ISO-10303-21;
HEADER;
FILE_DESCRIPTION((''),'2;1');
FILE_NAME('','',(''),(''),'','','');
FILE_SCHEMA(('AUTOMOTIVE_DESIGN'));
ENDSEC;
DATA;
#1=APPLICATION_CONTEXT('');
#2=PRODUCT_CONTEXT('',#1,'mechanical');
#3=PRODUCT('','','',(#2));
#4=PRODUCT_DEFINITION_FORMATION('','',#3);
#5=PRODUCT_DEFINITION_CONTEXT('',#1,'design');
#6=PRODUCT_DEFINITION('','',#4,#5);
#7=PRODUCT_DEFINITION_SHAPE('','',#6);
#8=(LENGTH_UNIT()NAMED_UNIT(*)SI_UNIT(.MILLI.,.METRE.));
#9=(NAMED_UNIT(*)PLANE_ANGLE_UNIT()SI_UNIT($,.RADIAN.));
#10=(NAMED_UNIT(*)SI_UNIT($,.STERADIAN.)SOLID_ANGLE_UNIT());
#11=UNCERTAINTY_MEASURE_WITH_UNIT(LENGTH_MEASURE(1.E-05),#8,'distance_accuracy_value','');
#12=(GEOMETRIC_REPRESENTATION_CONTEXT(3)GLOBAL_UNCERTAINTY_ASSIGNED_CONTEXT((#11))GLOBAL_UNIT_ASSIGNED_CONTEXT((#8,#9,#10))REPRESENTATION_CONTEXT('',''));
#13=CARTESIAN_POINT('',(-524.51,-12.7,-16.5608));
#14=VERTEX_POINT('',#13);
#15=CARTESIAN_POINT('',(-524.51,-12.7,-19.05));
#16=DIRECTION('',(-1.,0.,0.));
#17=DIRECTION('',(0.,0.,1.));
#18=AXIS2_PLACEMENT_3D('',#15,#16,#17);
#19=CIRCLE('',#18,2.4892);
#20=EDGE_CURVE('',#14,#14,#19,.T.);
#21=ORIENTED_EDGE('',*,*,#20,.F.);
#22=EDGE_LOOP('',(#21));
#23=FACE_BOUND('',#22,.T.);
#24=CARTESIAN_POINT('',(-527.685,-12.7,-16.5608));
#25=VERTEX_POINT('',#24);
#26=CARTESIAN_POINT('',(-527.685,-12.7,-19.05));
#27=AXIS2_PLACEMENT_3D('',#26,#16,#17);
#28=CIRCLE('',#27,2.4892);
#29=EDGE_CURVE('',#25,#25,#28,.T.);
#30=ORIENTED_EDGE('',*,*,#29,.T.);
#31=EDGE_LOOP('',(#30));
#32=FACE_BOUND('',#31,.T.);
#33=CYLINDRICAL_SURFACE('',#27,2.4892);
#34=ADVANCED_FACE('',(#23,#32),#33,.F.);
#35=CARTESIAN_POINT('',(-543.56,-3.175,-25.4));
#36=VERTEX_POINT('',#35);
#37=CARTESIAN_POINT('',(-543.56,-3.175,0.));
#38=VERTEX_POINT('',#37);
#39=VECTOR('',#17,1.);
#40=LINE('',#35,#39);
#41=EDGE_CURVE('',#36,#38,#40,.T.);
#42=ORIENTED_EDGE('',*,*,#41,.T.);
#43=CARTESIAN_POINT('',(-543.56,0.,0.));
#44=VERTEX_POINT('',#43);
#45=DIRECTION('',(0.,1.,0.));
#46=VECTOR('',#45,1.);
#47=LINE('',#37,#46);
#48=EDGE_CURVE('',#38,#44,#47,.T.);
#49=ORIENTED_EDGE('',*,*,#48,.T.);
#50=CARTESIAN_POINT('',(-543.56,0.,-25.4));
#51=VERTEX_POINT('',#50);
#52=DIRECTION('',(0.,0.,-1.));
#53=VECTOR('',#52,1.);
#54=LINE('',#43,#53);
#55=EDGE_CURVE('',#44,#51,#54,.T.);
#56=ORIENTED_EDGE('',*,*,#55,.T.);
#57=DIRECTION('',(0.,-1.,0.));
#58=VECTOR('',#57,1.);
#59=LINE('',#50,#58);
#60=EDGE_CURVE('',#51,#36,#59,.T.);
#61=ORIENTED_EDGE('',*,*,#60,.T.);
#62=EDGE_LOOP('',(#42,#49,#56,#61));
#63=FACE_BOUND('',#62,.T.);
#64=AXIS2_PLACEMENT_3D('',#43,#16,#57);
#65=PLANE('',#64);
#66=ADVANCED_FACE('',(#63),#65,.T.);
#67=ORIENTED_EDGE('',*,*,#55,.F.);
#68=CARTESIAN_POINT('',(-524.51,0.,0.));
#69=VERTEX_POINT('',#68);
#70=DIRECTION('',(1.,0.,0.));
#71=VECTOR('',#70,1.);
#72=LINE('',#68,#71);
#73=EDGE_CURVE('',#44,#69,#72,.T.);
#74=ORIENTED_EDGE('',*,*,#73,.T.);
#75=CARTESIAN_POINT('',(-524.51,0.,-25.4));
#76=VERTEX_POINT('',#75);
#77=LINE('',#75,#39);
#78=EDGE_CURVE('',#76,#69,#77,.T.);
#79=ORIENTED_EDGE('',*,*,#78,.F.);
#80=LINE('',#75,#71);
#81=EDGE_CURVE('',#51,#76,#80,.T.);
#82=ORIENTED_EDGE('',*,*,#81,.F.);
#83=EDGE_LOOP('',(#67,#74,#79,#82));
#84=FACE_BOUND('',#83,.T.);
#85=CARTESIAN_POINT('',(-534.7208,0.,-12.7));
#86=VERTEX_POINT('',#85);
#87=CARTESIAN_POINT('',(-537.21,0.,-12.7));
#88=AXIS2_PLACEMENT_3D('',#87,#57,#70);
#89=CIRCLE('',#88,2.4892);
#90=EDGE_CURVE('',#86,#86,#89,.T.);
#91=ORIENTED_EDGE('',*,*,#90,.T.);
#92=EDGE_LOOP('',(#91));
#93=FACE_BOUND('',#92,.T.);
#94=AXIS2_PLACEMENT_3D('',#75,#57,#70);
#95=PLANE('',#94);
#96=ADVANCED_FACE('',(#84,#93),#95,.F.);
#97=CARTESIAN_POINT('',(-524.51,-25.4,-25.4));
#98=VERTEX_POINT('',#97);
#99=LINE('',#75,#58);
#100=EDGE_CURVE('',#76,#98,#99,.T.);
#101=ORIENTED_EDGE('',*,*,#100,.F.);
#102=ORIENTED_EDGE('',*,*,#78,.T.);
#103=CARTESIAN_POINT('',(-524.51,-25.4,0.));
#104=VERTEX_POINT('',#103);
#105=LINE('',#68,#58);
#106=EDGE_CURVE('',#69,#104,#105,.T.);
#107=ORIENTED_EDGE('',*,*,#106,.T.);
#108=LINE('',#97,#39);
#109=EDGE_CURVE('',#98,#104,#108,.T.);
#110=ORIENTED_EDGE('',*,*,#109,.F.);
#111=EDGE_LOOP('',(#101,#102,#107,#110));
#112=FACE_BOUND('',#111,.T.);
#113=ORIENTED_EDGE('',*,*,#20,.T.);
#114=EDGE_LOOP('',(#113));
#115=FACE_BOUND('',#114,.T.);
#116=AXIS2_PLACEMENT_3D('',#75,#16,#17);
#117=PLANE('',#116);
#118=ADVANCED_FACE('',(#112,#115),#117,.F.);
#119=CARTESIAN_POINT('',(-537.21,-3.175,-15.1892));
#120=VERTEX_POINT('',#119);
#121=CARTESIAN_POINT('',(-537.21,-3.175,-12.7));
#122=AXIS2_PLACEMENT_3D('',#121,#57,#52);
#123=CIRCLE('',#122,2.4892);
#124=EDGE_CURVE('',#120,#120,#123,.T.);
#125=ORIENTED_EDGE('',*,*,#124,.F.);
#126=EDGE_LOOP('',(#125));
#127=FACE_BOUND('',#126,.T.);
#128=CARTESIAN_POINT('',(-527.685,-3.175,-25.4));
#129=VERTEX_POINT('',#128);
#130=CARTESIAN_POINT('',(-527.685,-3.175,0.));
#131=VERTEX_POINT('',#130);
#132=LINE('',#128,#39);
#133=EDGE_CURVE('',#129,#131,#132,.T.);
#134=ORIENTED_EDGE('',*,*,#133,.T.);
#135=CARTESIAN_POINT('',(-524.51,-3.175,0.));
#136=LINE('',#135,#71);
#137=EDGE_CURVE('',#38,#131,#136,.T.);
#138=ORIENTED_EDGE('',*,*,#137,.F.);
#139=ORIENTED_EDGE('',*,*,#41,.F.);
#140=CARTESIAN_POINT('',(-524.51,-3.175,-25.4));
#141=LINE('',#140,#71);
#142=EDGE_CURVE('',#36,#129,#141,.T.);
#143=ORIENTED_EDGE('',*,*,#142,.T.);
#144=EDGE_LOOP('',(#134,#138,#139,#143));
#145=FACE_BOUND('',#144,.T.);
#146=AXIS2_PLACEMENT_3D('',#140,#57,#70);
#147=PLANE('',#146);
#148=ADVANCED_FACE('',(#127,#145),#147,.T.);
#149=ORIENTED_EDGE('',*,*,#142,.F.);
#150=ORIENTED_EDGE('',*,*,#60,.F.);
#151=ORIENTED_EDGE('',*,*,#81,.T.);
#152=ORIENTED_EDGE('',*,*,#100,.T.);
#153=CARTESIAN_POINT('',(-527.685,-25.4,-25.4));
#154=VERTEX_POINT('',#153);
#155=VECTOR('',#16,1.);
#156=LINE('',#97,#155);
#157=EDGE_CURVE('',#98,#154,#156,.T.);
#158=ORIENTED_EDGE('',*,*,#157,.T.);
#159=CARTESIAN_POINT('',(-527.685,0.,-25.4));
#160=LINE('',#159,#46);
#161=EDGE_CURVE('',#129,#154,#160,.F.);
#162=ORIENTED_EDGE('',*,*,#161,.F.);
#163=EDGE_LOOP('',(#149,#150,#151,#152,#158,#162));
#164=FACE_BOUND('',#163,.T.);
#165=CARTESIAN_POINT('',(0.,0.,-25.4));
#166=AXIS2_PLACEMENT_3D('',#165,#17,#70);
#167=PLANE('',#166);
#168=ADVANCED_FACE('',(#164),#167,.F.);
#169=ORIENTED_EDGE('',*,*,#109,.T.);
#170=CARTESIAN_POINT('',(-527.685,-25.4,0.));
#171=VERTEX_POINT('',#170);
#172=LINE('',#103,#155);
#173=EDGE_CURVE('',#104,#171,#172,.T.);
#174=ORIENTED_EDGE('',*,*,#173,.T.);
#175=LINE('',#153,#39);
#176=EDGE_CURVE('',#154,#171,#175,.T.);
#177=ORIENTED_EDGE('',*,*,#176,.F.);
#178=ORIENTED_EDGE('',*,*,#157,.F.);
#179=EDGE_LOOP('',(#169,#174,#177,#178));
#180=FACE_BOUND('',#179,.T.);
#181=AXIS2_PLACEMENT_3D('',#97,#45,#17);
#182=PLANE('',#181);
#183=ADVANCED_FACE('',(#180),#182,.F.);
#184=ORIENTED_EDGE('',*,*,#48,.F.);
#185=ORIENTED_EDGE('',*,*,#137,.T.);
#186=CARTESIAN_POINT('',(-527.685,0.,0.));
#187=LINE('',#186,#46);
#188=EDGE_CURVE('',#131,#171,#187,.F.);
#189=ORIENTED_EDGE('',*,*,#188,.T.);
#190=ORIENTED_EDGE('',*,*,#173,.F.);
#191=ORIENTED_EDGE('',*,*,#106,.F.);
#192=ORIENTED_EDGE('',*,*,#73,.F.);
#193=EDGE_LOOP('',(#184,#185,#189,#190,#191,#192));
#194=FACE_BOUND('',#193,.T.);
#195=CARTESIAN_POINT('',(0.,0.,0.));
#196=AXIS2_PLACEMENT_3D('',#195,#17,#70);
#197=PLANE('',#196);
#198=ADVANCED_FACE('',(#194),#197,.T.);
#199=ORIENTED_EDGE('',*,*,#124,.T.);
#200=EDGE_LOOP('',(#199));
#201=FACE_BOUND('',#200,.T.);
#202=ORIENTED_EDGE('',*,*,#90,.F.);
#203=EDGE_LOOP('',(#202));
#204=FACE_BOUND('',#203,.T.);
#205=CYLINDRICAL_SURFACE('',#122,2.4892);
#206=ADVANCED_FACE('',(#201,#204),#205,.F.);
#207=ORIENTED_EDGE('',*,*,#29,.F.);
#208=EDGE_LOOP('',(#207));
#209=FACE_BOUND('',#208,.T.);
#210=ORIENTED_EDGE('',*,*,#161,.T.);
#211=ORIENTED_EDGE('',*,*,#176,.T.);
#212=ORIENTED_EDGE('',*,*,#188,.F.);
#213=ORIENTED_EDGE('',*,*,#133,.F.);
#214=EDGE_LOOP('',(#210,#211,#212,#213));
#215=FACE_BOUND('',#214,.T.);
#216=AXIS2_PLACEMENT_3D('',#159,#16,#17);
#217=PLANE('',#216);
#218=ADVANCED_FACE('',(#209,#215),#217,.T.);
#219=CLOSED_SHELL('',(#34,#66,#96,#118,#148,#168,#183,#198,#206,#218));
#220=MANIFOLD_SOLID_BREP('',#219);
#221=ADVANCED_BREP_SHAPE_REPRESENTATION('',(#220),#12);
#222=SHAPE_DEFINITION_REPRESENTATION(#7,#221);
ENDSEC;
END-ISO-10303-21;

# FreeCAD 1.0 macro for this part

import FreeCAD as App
import Part
import Sketcher
Q = App.Units.Quantity


def add_polygon(sketch, points):
    """Adds a closed chain of lines whose ends are joined by coincident constraints."""
    first, n = sketch.GeometryCount, len(points)
    for a, b in zip(points, points[1:] + points[:1]):
        sketch.addGeometry(Part.LineSegment(App.Vector(*a, 0), App.Vector(*b, 0)), False)
    for i in range(n):
        sketch.addConstraint(Sketcher.Constraint("Coincident", first + i, 2, first + (i + 1) % n, 1))

doc = App.newDocument("Part")
body = doc.addObject("PartDesign::Body", "Body")

sketch1 = doc.addObject("Sketcher::SketchObject", "Sketch")
body.addObject(sketch1)
sketch1.AttachmentSupport = (doc.XY_Plane, [""])
sketch1.MapMode = "FlatFace"
add_polygon(sketch1, [(-524.5, -25.4), (-524.5, 0), (-549.9, 0), (-549.9, -3.2), (-527.7, -3.2), (-527.7, -25.4)])
sketch1.addConstraint([
    Sketcher.Constraint("Vertical", 0),
    Sketcher.Constraint("Horizontal", 1),
    Sketcher.Constraint("Vertical", 2),
    Sketcher.Constraint("Horizontal", 3),
    Sketcher.Constraint("Vertical", 4),
    Sketcher.Constraint("Horizontal", 5),
    Sketcher.Constraint("PointOnObject", 0, 2, -1),
    Sketcher.Constraint("Equal", 1, 0),
    Sketcher.Constraint("Equal", 5, 2),
    Sketcher.Constraint("DistanceX", 1, 2, 1, 1, Q("1 in")),
    Sketcher.Constraint("DistanceX", 3, 1, 3, 2, Q("0.875 in")),
    Sketcher.Constraint("DistanceX", 0, 2, -1, 1, Q("20.65 in")),
])
pad1 = doc.addObject("PartDesign::Pad", "Pad")
body.addObject(pad1)
pad1.Profile = sketch1
pad1.Length = Q("1 in")
pad1.Reversed = True

sketch2 = doc.addObject("Sketcher::SketchObject", "Sketch001")
body.addObject(sketch2)
sketch2.AttachmentSupport = (doc.YZ_Plane, [""])
sketch2.MapMode = "FlatFace"
sketch2.AttachmentOffset = App.Placement(App.Vector(0, 0, -20.775 * 25.4), App.Rotation())
sketch2.addGeometry(Part.Circle(App.Vector(-12.7, -19.1, 0), App.Vector(0, 0, 1), 2.5), False)
sketch2.addConstraint([
    Sketcher.Constraint("Diameter", 0, Q("0.196 in")),
    Sketcher.Constraint("DistanceX", 0, 3, -1, 1, Q("0.5 in")),
    Sketcher.Constraint("DistanceY", 0, 3, -1, 1, Q("0.75 in")),
])
doc.recompute()
hole = doc.addObject("PartDesign::Hole", "Hole")
body.addObject(hole)
hole.Profile = sketch2
hole.ThreadType = "None"
hole.Diameter = Q("0.196 in")
hole.DepthType = "Dimension"
hole.Depth = Q("0.125 in")
hole.DrillPoint = "Flat"
hole.Reversed = True

sketch3 = doc.addObject("Sketcher::SketchObject", "Sketch002")
body.addObject(sketch3)
sketch3.AttachmentSupport = (doc.XZ_Plane, [""])
sketch3.MapMode = "FlatFace"
sketch3.AttachmentOffset = App.Placement(App.Vector(0, 0, 0.125 * 25.4), App.Rotation())
sketch3.addGeometry(Part.Circle(App.Vector(-537.2, -12.7, 0), App.Vector(0, 0, 1), 2.5), False)
sketch3.addConstraint([
    Sketcher.Constraint("Diameter", 0, Q("0.196 in")),
    Sketcher.Constraint("DistanceY", 0, 3, -1, 1, Q("0.5 in")),
    Sketcher.Constraint("DistanceX", 0, 3, -1, 1, Q("21.15 in")),
])
doc.recompute()
hole2 = doc.addObject("PartDesign::Hole", "Hole001")
body.addObject(hole2)
hole2.Profile = sketch3
hole2.ThreadType = "None"
hole2.Diameter = Q("0.196 in")
hole2.DepthType = "Dimension"
hole2.Depth = Q("0.125 in")
hole2.DrillPoint = "Flat"

sketch4 = doc.addObject("Sketcher::SketchObject", "Sketch003")
body.addObject(sketch4)
sketch4.AttachmentSupport = (doc.YZ_Plane, [""])
sketch4.MapMode = "FlatFace"
sketch4.AttachmentOffset = App.Placement(App.Vector(0, 0, -21.65 * 25.4), App.Rotation())
add_polygon(sketch4, [(0, -25.4), (-3.2, -25.4), (-3.2, 0), (0, 0)])
sketch4.addConstraint([
    Sketcher.Constraint("Horizontal", 0),
    Sketcher.Constraint("Vertical", 1),
    Sketcher.Constraint("Horizontal", 2),
    Sketcher.Constraint("Vertical", 3),
    Sketcher.Constraint("Coincident", 2, 2, -1, 1),
    Sketcher.Constraint("DistanceY", 1, 1, 1, 2, Q("1 in")),
    Sketcher.Constraint("DistanceX", 0, 2, 0, 1, Q("0.125 in")),
])
pocket1 = doc.addObject("PartDesign::Pocket", "Pocket")
body.addObject(pocket1)
pocket1.Profile = sketch4
pocket1.Length = Q("0.25 in")
pocket1.Reversed = True

doc.recompute()
